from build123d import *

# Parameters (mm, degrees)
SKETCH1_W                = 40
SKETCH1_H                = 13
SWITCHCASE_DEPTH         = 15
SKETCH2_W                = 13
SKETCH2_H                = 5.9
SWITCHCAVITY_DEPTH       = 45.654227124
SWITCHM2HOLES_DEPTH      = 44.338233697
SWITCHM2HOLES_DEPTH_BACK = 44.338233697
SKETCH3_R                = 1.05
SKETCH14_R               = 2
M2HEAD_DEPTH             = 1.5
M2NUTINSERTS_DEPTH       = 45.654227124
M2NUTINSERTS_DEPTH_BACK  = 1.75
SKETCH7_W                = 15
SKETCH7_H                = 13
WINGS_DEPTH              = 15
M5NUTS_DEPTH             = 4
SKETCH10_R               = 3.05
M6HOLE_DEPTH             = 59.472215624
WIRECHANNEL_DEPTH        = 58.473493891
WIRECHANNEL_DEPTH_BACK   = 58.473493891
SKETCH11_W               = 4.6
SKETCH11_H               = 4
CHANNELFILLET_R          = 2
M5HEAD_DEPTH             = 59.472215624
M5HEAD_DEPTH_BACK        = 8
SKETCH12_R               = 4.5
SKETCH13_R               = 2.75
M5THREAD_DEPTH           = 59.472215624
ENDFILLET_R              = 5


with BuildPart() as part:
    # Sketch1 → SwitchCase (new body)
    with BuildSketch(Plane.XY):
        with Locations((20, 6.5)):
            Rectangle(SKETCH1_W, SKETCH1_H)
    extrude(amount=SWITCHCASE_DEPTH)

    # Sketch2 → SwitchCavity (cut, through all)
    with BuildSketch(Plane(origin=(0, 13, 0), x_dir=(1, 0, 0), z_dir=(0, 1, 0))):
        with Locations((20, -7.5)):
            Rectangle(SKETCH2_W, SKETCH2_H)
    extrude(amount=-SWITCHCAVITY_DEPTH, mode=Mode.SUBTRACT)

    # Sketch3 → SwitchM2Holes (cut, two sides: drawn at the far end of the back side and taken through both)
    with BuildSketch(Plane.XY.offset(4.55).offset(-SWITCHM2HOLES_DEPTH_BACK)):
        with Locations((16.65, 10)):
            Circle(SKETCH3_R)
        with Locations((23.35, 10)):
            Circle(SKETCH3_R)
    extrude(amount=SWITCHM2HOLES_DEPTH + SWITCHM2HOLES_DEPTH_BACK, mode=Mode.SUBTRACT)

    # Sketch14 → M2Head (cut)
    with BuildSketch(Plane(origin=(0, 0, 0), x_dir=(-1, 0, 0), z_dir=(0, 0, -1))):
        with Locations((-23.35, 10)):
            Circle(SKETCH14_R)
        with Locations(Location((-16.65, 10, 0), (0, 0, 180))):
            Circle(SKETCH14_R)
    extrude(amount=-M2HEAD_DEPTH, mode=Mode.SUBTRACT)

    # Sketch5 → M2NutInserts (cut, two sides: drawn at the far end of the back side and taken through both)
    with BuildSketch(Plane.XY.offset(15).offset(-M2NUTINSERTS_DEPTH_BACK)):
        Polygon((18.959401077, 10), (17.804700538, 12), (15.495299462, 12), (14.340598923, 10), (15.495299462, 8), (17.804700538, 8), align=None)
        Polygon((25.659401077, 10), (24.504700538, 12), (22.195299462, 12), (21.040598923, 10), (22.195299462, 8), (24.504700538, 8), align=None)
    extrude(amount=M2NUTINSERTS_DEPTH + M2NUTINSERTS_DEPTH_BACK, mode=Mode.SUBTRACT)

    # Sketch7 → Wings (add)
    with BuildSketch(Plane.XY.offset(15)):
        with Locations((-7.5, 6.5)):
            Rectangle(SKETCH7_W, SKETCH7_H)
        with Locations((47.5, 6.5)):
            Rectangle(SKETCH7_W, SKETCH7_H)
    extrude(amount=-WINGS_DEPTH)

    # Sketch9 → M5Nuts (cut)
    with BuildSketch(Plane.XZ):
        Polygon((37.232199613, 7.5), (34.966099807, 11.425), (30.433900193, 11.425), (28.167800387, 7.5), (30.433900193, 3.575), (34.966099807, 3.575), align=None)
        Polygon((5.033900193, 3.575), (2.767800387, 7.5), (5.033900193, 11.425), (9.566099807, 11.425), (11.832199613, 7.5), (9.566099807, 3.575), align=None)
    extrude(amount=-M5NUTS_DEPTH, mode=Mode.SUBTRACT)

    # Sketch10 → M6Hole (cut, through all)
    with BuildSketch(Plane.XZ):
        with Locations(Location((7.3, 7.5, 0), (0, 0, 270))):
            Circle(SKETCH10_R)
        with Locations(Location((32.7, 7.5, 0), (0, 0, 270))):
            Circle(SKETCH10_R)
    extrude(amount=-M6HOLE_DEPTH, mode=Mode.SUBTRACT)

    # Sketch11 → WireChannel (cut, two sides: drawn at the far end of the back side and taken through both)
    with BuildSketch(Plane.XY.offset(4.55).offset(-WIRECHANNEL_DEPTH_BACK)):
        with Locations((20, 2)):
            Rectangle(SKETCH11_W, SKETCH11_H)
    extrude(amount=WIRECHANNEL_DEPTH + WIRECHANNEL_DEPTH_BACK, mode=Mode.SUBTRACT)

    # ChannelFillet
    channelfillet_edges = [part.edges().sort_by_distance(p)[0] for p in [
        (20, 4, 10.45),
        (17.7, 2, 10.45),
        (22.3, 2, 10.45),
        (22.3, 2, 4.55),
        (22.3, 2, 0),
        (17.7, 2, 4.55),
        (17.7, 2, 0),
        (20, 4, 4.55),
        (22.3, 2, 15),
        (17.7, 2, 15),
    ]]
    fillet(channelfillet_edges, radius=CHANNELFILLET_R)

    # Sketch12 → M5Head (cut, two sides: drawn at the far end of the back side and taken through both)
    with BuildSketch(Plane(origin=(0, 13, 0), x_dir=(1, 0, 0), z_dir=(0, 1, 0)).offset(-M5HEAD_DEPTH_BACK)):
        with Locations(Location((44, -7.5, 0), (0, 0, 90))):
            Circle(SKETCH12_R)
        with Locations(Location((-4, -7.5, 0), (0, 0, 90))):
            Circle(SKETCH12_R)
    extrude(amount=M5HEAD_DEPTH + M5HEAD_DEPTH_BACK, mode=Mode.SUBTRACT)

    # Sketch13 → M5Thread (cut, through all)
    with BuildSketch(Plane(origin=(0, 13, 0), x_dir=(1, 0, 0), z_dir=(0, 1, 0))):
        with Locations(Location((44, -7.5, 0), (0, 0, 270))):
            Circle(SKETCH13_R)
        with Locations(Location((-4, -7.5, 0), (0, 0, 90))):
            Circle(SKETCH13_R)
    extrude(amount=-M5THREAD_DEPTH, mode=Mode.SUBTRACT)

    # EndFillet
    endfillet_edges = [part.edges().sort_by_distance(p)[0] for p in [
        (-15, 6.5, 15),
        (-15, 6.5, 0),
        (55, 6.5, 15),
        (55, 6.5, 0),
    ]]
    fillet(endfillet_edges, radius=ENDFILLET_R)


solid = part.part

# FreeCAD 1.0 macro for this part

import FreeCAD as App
import Part
import Sketcher
Q = App.Units.Quantity


def edges_at(feature, points):
    """Names of the edges that pass closest to the given points."""
    edges = feature.Shape.Edges
    near = lambda p: min(range(len(edges)), key=lambda i: edges[i].distToShape(Part.Vertex(*p))[0])
    return sorted({f"Edge{near(p) + 1}" for p in points})

doc = App.newDocument("Part")
body = doc.addObject("PartDesign::Body", "Body")

sketch1 = body.newObject("Sketcher::SketchObject", "Sketch")
sketch1.AttachmentSupport = (doc.getObject("XY_Plane"), [""])
sketch1.MapMode = "FlatFace"
sketch1.addGeometry([
    Part.LineSegment(App.Vector(0, 13, 0), App.Vector(0, 0, 0)),
    Part.LineSegment(App.Vector(0, 0, 0), App.Vector(40, 0, 0)),
    Part.LineSegment(App.Vector(40, 0, 0), App.Vector(40, 13, 0)),
    Part.LineSegment(App.Vector(40, 13, 0), App.Vector(0, 13, 0)),
], False)
sketch1.addConstraint([
    Sketcher.Constraint("Coincident", 0, 2, 1, 1),
    Sketcher.Constraint("Coincident", 1, 2, 2, 1),
    Sketcher.Constraint("Coincident", 2, 2, 3, 1),
    Sketcher.Constraint("Coincident", 3, 2, 0, 1),
    Sketcher.Constraint("Vertical", 0),
    Sketcher.Constraint("Horizontal", 1),
    Sketcher.Constraint("Vertical", 2),
    Sketcher.Constraint("Horizontal", 3),
    Sketcher.Constraint("Coincident", 0, 2, -1, 1),
    Sketcher.Constraint("DistanceX", 1, 1, 1, 2, 40.0),
    Sketcher.Constraint("DistanceY", 0, 2, 0, 1, 13.0),
])
pad1 = body.newObject("PartDesign::Pad", "Pad")
pad1.Profile = sketch1
pad1.Length = 15

sketch2 = body.newObject("Sketcher::SketchObject", "Sketch001")
sketch2.AttachmentSupport = (doc.getObject("XZ_Plane"), [""])
sketch2.MapMode = "FlatFace"
sketch2.AttachmentOffset = App.Placement(App.Vector(0, 0, -13), App.Rotation())
sketch2.addGeometry([
    Part.LineSegment(App.Vector(14, 5, 0), App.Vector(14, 10, 0)),
    Part.LineSegment(App.Vector(14, 10, 0), App.Vector(26, 10, 0)),
    Part.LineSegment(App.Vector(26, 10, 0), App.Vector(26, 5, 0)),
    Part.LineSegment(App.Vector(26, 5, 0), App.Vector(14, 5, 0)),
], False)
sketch2.addConstraint([
    Sketcher.Constraint("Coincident", 0, 2, 1, 1),
    Sketcher.Constraint("Coincident", 1, 2, 2, 1),
    Sketcher.Constraint("Coincident", 2, 2, 3, 1),
    Sketcher.Constraint("Coincident", 3, 2, 0, 1),
    Sketcher.Constraint("Vertical", 0),
    Sketcher.Constraint("Horizontal", 1),
    Sketcher.Constraint("Vertical", 2),
    Sketcher.Constraint("Horizontal", 3),
    Sketcher.Constraint("DistanceX", 1, 1, 1, 2, 13.0),
    Sketcher.Constraint("DistanceY", 0, 1, 0, 2, 5.9),
    Sketcher.Constraint("DistanceX", -1, 1, 0, 2, 13.5),
    Sketcher.Constraint("DistanceY", -1, 1, 0, 2, 10.45),
])
pocket1 = body.newObject("PartDesign::Pocket", "Pocket")
pocket1.Profile = sketch2
pocket1.Type = "ThroughAll"
pocket1.Reversed = True

sketch3 = body.newObject("Sketcher::SketchObject", "Sketch002")
sketch3.AttachmentSupport = (doc.getObject("XY_Plane"), [""])
sketch3.MapMode = "FlatFace"
sketch3.AttachmentOffset = App.Placement(App.Vector(0, 0, 4.55), App.Rotation())
sketch3.addGeometry([
    Part.Circle(App.Vector(16.6, 10, 0), App.Vector(0, 0, 1), 1.1),
    Part.Circle(App.Vector(23.4, 10, 0), App.Vector(0, 0, 1), 1.1),
], False)
sketch3.addConstraint([
    Sketcher.Constraint("Equal", 0, 1),
    Sketcher.Constraint("Horizontal", 0, 3, 1, 3),
    Sketcher.Constraint("Diameter", 0, 2.1),
    Sketcher.Constraint("DistanceY", -1, 1, 0, 3, 10.0),
    Sketcher.Constraint("DistanceX", 0, 3, 1, 3, 6.7),
    Sketcher.Constraint("DistanceX", -1, 1, 0, 3, 16.65),
])
pocket2 = body.newObject("PartDesign::Pocket", "Pocket001")
pocket2.Profile = sketch3
pocket2.Type = "ThroughAll"
pocket2.Midplane = True

sketch4 = body.newObject("Sketcher::SketchObject", "Sketch003")
sketch4.AttachmentSupport = (doc.getObject("XY_Plane"), [""])
sketch4.MapMode = "FlatFace"
sketch4.addGeometry([
    Part.Circle(App.Vector(23.4, 10, 0), App.Vector(0, 0, 1), 2),
    Part.Circle(App.Vector(16.6, 10, 0), App.Vector(0, 0, 1), 2),
], False)
sketch4.addConstraint([
    Sketcher.Constraint("Equal", 0, 1),
    Sketcher.Constraint("Horizontal", 0, 3, 1, 3),
    Sketcher.Constraint("Diameter", 0, 4.0),
    Sketcher.Constraint("DistanceY", -1, 1, 0, 3, 10.0),
    Sketcher.Constraint("DistanceX", 1, 3, 0, 3, 6.7),
    Sketcher.Constraint("DistanceX", -1, 1, 0, 3, 23.35),
])
pocket3 = body.newObject("PartDesign::Pocket", "Pocket002")
pocket3.Profile = sketch4
pocket3.Length = 1.5
pocket3.Reversed = True

sketch5 = body.newObject("Sketcher::SketchObject", "Sketch004")
sketch5.AttachmentSupport = (doc.getObject("XY_Plane"), [""])
sketch5.MapMode = "FlatFace"
sketch5.AttachmentOffset = App.Placement(App.Vector(0, 0, 15), App.Rotation())
sketch5.addGeometry([
    Part.LineSegment(App.Vector(19, 10, 0), App.Vector(17.8, 12, 0)),
    Part.LineSegment(App.Vector(17.8, 12, 0), App.Vector(15.5, 12, 0)),
    Part.LineSegment(App.Vector(15.5, 12, 0), App.Vector(14.3, 10, 0)),
    Part.LineSegment(App.Vector(14.3, 10, 0), App.Vector(15.5, 8, 0)),
    Part.LineSegment(App.Vector(15.5, 8, 0), App.Vector(17.8, 8, 0)),
    Part.LineSegment(App.Vector(17.8, 8, 0), App.Vector(19, 10, 0)),
    Part.LineSegment(App.Vector(25.7, 10, 0), App.Vector(24.5, 12, 0)),
    Part.LineSegment(App.Vector(24.5, 12, 0), App.Vector(22.2, 12, 0)),
    Part.LineSegment(App.Vector(22.2, 12, 0), App.Vector(21, 10, 0)),
    Part.LineSegment(App.Vector(21, 10, 0), App.Vector(22.2, 8, 0)),
    Part.LineSegment(App.Vector(22.2, 8, 0), App.Vector(24.5, 8, 0)),
    Part.LineSegment(App.Vector(24.5, 8, 0), App.Vector(25.7, 10, 0)),
], False)
sketch5.addConstraint([
    Sketcher.Constraint("Coincident", 0, 2, 1, 1),
    Sketcher.Constraint("Coincident", 1, 2, 2, 1),
    Sketcher.Constraint("Coincident", 2, 2, 3, 1),
    Sketcher.Constraint("Coincident", 3, 2, 4, 1),
    Sketcher.Constraint("Coincident", 4, 2, 5, 1),
    Sketcher.Constraint("Coincident", 5, 2, 0, 1),
    Sketcher.Constraint("Coincident", 6, 2, 7, 1),
    Sketcher.Constraint("Coincident", 7, 2, 8, 1),
    Sketcher.Constraint("Coincident", 8, 2, 9, 1),
    Sketcher.Constraint("Coincident", 9, 2, 10, 1),
    Sketcher.Constraint("Coincident", 10, 2, 11, 1),
    Sketcher.Constraint("Coincident", 11, 2, 6, 1),
    Sketcher.Constraint("Horizontal", 1),
    Sketcher.Constraint("Horizontal", 4),
    Sketcher.Constraint("Horizontal", 7),
    Sketcher.Constraint("Horizontal", 10),
    Sketcher.Constraint("Parallel", 0, 3),
    Sketcher.Constraint("Parallel", 2, 5),
    Sketcher.Constraint("Parallel", 3, 6),
    Sketcher.Constraint("Parallel", 5, 8),
    Sketcher.Constraint("Parallel", 6, 9),
    Sketcher.Constraint("Parallel", 8, 11),
    Sketcher.Constraint("Horizontal", 2, 2, 5, 2),
    Sketcher.Constraint("Horizontal", 1, 2, 6, 2),
    Sketcher.Constraint("Horizontal", 5, 2, 8, 2),
    Sketcher.Constraint("Horizontal", 4, 2, 9, 2),
    Sketcher.Constraint("Horizontal", 8, 2, 11, 2),
    Sketcher.Constraint("Vertical", 1, 2, 3, 2),
    Sketcher.Constraint("Vertical", 0, 2, 4, 2),
    Sketcher.Constraint("Equal", 4, 7),
    Sketcher.Constraint("Angle", 0, Q("120 deg")),
    Sketcher.Constraint("DistanceY", -1, 1, 0, 2, 12.0),
    Sketcher.Constraint("DistanceY", -1, 1, 2, 2, 10.0),
    Sketcher.Constraint("DistanceX", 0, 2, 6, 2, 6.7),
    Sketcher.Constraint("DistanceX", 1, 2, 1, 1, 2.309401),
    Sketcher.Constraint("DistanceX", -1, 1, 0, 2, 17.804701),
])
pocket4 = body.newObject("PartDesign::Pocket", "Pocket003")
pocket4.Profile = sketch5
pocket4.Type = "TwoLengths"
pocket4.Length = 45.654227
pocket4.Length2 = 1.75
pocket4.Reversed = True

sketch6 = body.newObject("Sketcher::SketchObject", "Sketch005")
sketch6.AttachmentSupport = (doc.getObject("XY_Plane"), [""])
sketch6.MapMode = "FlatFace"
sketch6.AttachmentOffset = App.Placement(App.Vector(0, 0, 15), App.Rotation())
sketch6.addGeometry([
    Part.LineSegment(App.Vector(-15, 13, 0), App.Vector(-15, 0, 0)),
    Part.LineSegment(App.Vector(-15, 0, 0), App.Vector(0, 0, 0)),
    Part.LineSegment(App.Vector(0, 0, 0), App.Vector(0, 13, 0)),
    Part.LineSegment(App.Vector(0, 13, 0), App.Vector(-15, 13, 0)),
    Part.LineSegment(App.Vector(40, 13, 0), App.Vector(40, 0, 0)),
    Part.LineSegment(App.Vector(40, 0, 0), App.Vector(55, 0, 0)),
    Part.LineSegment(App.Vector(55, 0, 0), App.Vector(55, 13, 0)),
    Part.LineSegment(App.Vector(55, 13, 0), App.Vector(40, 13, 0)),
], False)
sketch6.addConstraint([
    Sketcher.Constraint("Coincident", 0, 2, 1, 1),
    Sketcher.Constraint("Coincident", 1, 2, 2, 1),
    Sketcher.Constraint("Coincident", 2, 2, 3, 1),
    Sketcher.Constraint("Coincident", 3, 2, 0, 1),
    Sketcher.Constraint("Coincident", 4, 2, 5, 1),
    Sketcher.Constraint("Coincident", 5, 2, 6, 1),
    Sketcher.Constraint("Coincident", 6, 2, 7, 1),
    Sketcher.Constraint("Coincident", 7, 2, 4, 1),
    Sketcher.Constraint("Vertical", 0),
    Sketcher.Constraint("Horizontal", 1),
    Sketcher.Constraint("Vertical", 2),
    Sketcher.Constraint("Horizontal", 3),
    Sketcher.Constraint("Vertical", 4),
    Sketcher.Constraint("Horizontal", 5),
    Sketcher.Constraint("Vertical", 6),
    Sketcher.Constraint("Horizontal", 7),
    Sketcher.Constraint("Coincident", 1, 2, -1, 1),
    Sketcher.Constraint("PointOnObject", 4, 2, -1),
    Sketcher.Constraint("Horizontal", 3, 2, 6, 2),
    Sketcher.Constraint("Equal", 3, 5),
    Sketcher.Constraint("DistanceX", 1, 1, 1, 2, 15.0),
    Sketcher.Constraint("DistanceY", 0, 2, 0, 1, 13.0),
    Sketcher.Constraint("DistanceX", -1, 1, 4, 2, 40.0),
])
pad2 = body.newObject("PartDesign::Pad", "Pad001")
pad2.Profile = sketch6
pad2.Length = 15
pad2.Reversed = True

sketch7 = body.newObject("Sketcher::SketchObject", "Sketch006")
sketch7.AttachmentSupport = (doc.getObject("XZ_Plane"), [""])
sketch7.MapMode = "FlatFace"
sketch7.addGeometry([
    Part.LineSegment(App.Vector(37.2, 7.5, 0), App.Vector(35, 11.4, 0)),
    Part.LineSegment(App.Vector(35, 11.4, 0), App.Vector(30.4, 11.4, 0)),
    Part.LineSegment(App.Vector(30.4, 11.4, 0), App.Vector(28.2, 7.5, 0)),
    Part.LineSegment(App.Vector(28.2, 7.5, 0), App.Vector(30.4, 3.6, 0)),
    Part.LineSegment(App.Vector(30.4, 3.6, 0), App.Vector(35, 3.6, 0)),
    Part.LineSegment(App.Vector(35, 3.6, 0), App.Vector(37.2, 7.5, 0)),
    Part.LineSegment(App.Vector(2.8, 7.5, 0), App.Vector(5, 3.6, 0)),
    Part.LineSegment(App.Vector(5, 3.6, 0), App.Vector(9.6, 3.6, 0)),
    Part.LineSegment(App.Vector(9.6, 3.6, 0), App.Vector(11.8, 7.5, 0)),
    Part.LineSegment(App.Vector(11.8, 7.5, 0), App.Vector(9.6, 11.4, 0)),
    Part.LineSegment(App.Vector(9.6, 11.4, 0), App.Vector(5, 11.4, 0)),
    Part.LineSegment(App.Vector(5, 11.4, 0), App.Vector(2.8, 7.5, 0)),
], False)
sketch7.addConstraint([
    Sketcher.Constraint("Coincident", 0, 2, 1, 1),
    Sketcher.Constraint("Coincident", 1, 2, 2, 1),
    Sketcher.Constraint("Coincident", 2, 2, 3, 1),
    Sketcher.Constraint("Coincident", 3, 2, 4, 1),
    Sketcher.Constraint("Coincident", 4, 2, 5, 1),
    Sketcher.Constraint("Coincident", 5, 2, 0, 1),
    Sketcher.Constraint("Coincident", 6, 2, 7, 1),
    Sketcher.Constraint("Coincident", 7, 2, 8, 1),
    Sketcher.Constraint("Coincident", 8, 2, 9, 1),
    Sketcher.Constraint("Coincident", 9, 2, 10, 1),
    Sketcher.Constraint("Coincident", 10, 2, 11, 1),
    Sketcher.Constraint("Coincident", 11, 2, 6, 1),
    Sketcher.Constraint("Horizontal", 1),
    Sketcher.Constraint("Horizontal", 4),
    Sketcher.Constraint("Horizontal", 7),
    Sketcher.Constraint("Horizontal", 10),
    Sketcher.Constraint("Parallel", 0, 3),
    Sketcher.Constraint("Parallel", 2, 5),
    Sketcher.Constraint("Parallel", 3, 6),
    Sketcher.Constraint("Parallel", 5, 8),
    Sketcher.Constraint("Parallel", 6, 9),
    Sketcher.Constraint("Parallel", 8, 11),
    Sketcher.Constraint("Horizontal", 2, 2, 5, 2),
    Sketcher.Constraint("Horizontal", 4, 2, 6, 2),
    Sketcher.Constraint("Horizontal", 5, 2, 8, 2),
    Sketcher.Constraint("Horizontal", 1, 2, 9, 2),
    Sketcher.Constraint("Horizontal", 8, 2, 11, 2),
    Sketcher.Constraint("Vertical", 1, 2, 3, 2),
    Sketcher.Constraint("Vertical", 0, 2, 4, 2),
    Sketcher.Constraint("Equal", 4, 7),
    Sketcher.Constraint("Angle", 0, Q("120 deg")),
    Sketcher.Constraint("DistanceY", -1, 1, 2, 2, 7.5),
    Sketcher.Constraint("DistanceX", 6, 2, 3, 2, 25.4),
    Sketcher.Constraint("DistanceY", 3, 2, 1, 2, 7.85),
    Sketcher.Constraint("DistanceX", 1, 2, 1, 1, 4.5322),
    Sketcher.Constraint("DistanceX", -1, 1, 0, 2, 34.9661),
])
pocket5 = body.newObject("PartDesign::Pocket", "Pocket004")
pocket5.Profile = sketch7
pocket5.Length = 4

sketch8 = body.newObject("Sketcher::SketchObject", "Sketch007")
sketch8.AttachmentSupport = (doc.getObject("XZ_Plane"), [""])
sketch8.MapMode = "FlatFace"
sketch8.addGeometry([
    Part.Circle(App.Vector(7.3, 7.5, 0), App.Vector(0, 0, 1), 3),
    Part.Circle(App.Vector(32.7, 7.5, 0), App.Vector(0, 0, 1), 3),
], False)
sketch8.addConstraint([
    Sketcher.Constraint("Equal", 0, 1),
    Sketcher.Constraint("Horizontal", 0, 3, 1, 3),
    Sketcher.Constraint("Diameter", 0, 6.1),
    Sketcher.Constraint("DistanceX", -1, 1, 0, 3, 7.3),
    Sketcher.Constraint("DistanceY", -1, 1, 0, 3, 7.5),
    Sketcher.Constraint("DistanceX", -1, 1, 1, 3, 32.7),
])
pocket6 = body.newObject("PartDesign::Pocket", "Pocket005")
pocket6.Profile = sketch8
pocket6.Type = "ThroughAll"

sketch9 = body.newObject("Sketcher::SketchObject", "Sketch008")
sketch9.AttachmentSupport = (doc.getObject("XY_Plane"), [""])
sketch9.MapMode = "FlatFace"
sketch9.AttachmentOffset = App.Placement(App.Vector(0, 0, 4.55), App.Rotation())
sketch9.addGeometry([
    Part.LineSegment(App.Vector(17.7, 4, 0), App.Vector(17.7, 0, 0)),
    Part.LineSegment(App.Vector(17.7, 0, 0), App.Vector(22.3, 0, 0)),
    Part.LineSegment(App.Vector(22.3, 0, 0), App.Vector(22.3, 4, 0)),
    Part.LineSegment(App.Vector(22.3, 4, 0), App.Vector(17.7, 4, 0)),
], False)
sketch9.addConstraint([
    Sketcher.Constraint("Coincident", 0, 2, 1, 1),
    Sketcher.Constraint("Coincident", 1, 2, 2, 1),
    Sketcher.Constraint("Coincident", 2, 2, 3, 1),
    Sketcher.Constraint("Coincident", 3, 2, 0, 1),
    Sketcher.Constraint("Vertical", 0),
    Sketcher.Constraint("Horizontal", 1),
    Sketcher.Constraint("Vertical", 2),
    Sketcher.Constraint("Horizontal", 3),
    Sketcher.Constraint("PointOnObject", 0, 2, -1),
    Sketcher.Constraint("DistanceY", 0, 2, 0, 1, 4.0),
    Sketcher.Constraint("DistanceX", 1, 1, 1, 2, 4.6),
    Sketcher.Constraint("DistanceX", -1, 1, 0, 2, 17.7),
])
pocket7 = body.newObject("PartDesign::Pocket", "Pocket006")
pocket7.Profile = sketch9
pocket7.Type = "ThroughAll"
pocket7.Midplane = True
doc.recompute()

fillet = body.newObject("PartDesign::Fillet", "Fillet")
fillet.Base = (pocket7, edges_at(pocket7, [
    (20, 4, 10.45),
    (17.7, 2, 10.45),
    (22.3, 2, 10.45),
    (22.3, 2, 4.55),
    (22.3, 2, 0),
    (17.7, 2, 4.55),
    (17.7, 2, 0),
    (20, 4, 4.55),
    (22.3, 2, 15),
    (17.7, 2, 15),
]))
fillet.Radius = 2

sketch10 = body.newObject("Sketcher::SketchObject", "Sketch009")
sketch10.AttachmentSupport = (doc.getObject("XZ_Plane"), [""])
sketch10.MapMode = "FlatFace"
sketch10.AttachmentOffset = App.Placement(App.Vector(0, 0, -13), App.Rotation())
sketch10.addGeometry([
    Part.Circle(App.Vector(44, 7.5, 0), App.Vector(0, 0, 1), 4.5),
    Part.Circle(App.Vector(-4, 7.5, 0), App.Vector(0, 0, 1), 4.5),
], False)
sketch10.addConstraint([
    Sketcher.Constraint("Equal", 0, 1),
    Sketcher.Constraint("Horizontal", 0, 3, 1, 3),
    Sketcher.Constraint("Diameter", 0, 9.0),
    Sketcher.Constraint("DistanceX", -1, 1, 0, 3, 44.0),
    Sketcher.Constraint("DistanceX", 1, 3, -1, 1, 4.0),
    Sketcher.Constraint("DistanceY", -1, 1, 0, 3, 7.5),
])
pocket8 = body.newObject("PartDesign::Pocket", "Pocket007")
pocket8.Profile = sketch10
pocket8.Type = "TwoLengths"
pocket8.Length = 59.472216
pocket8.Length2 = 8

sketch11 = body.newObject("Sketcher::SketchObject", "Sketch010")
sketch11.AttachmentSupport = (doc.getObject("XZ_Plane"), [""])
sketch11.MapMode = "FlatFace"
sketch11.AttachmentOffset = App.Placement(App.Vector(0, 0, -13), App.Rotation())
sketch11.addGeometry([
    Part.Circle(App.Vector(44, 7.5, 0), App.Vector(0, 0, 1), 2.8),
    Part.Circle(App.Vector(-4, 7.5, 0), App.Vector(0, 0, 1), 2.8),
], False)
sketch11.addConstraint([
    Sketcher.Constraint("Equal", 0, 1),
    Sketcher.Constraint("Horizontal", 0, 3, 1, 3),
    Sketcher.Constraint("Diameter", 0, 5.5),
    Sketcher.Constraint("DistanceX", -1, 1, 0, 3, 44.0),
    Sketcher.Constraint("DistanceX", 1, 3, -1, 1, 4.0),
    Sketcher.Constraint("DistanceY", -1, 1, 0, 3, 7.5),
])
pocket9 = body.newObject("PartDesign::Pocket", "Pocket008")
pocket9.Profile = sketch11
pocket9.Type = "ThroughAll"
pocket9.Reversed = True
doc.recompute()

fillet2 = body.newObject("PartDesign::Fillet", "Fillet001")
fillet2.Base = (pocket9, edges_at(pocket9, [
    (-15, 6.5, 15),
    (-15, 6.5, 0),
    (55, 6.5, 15),
    (55, 6.5, 0),
]))
fillet2.Radius = 5

doc.recompute()
